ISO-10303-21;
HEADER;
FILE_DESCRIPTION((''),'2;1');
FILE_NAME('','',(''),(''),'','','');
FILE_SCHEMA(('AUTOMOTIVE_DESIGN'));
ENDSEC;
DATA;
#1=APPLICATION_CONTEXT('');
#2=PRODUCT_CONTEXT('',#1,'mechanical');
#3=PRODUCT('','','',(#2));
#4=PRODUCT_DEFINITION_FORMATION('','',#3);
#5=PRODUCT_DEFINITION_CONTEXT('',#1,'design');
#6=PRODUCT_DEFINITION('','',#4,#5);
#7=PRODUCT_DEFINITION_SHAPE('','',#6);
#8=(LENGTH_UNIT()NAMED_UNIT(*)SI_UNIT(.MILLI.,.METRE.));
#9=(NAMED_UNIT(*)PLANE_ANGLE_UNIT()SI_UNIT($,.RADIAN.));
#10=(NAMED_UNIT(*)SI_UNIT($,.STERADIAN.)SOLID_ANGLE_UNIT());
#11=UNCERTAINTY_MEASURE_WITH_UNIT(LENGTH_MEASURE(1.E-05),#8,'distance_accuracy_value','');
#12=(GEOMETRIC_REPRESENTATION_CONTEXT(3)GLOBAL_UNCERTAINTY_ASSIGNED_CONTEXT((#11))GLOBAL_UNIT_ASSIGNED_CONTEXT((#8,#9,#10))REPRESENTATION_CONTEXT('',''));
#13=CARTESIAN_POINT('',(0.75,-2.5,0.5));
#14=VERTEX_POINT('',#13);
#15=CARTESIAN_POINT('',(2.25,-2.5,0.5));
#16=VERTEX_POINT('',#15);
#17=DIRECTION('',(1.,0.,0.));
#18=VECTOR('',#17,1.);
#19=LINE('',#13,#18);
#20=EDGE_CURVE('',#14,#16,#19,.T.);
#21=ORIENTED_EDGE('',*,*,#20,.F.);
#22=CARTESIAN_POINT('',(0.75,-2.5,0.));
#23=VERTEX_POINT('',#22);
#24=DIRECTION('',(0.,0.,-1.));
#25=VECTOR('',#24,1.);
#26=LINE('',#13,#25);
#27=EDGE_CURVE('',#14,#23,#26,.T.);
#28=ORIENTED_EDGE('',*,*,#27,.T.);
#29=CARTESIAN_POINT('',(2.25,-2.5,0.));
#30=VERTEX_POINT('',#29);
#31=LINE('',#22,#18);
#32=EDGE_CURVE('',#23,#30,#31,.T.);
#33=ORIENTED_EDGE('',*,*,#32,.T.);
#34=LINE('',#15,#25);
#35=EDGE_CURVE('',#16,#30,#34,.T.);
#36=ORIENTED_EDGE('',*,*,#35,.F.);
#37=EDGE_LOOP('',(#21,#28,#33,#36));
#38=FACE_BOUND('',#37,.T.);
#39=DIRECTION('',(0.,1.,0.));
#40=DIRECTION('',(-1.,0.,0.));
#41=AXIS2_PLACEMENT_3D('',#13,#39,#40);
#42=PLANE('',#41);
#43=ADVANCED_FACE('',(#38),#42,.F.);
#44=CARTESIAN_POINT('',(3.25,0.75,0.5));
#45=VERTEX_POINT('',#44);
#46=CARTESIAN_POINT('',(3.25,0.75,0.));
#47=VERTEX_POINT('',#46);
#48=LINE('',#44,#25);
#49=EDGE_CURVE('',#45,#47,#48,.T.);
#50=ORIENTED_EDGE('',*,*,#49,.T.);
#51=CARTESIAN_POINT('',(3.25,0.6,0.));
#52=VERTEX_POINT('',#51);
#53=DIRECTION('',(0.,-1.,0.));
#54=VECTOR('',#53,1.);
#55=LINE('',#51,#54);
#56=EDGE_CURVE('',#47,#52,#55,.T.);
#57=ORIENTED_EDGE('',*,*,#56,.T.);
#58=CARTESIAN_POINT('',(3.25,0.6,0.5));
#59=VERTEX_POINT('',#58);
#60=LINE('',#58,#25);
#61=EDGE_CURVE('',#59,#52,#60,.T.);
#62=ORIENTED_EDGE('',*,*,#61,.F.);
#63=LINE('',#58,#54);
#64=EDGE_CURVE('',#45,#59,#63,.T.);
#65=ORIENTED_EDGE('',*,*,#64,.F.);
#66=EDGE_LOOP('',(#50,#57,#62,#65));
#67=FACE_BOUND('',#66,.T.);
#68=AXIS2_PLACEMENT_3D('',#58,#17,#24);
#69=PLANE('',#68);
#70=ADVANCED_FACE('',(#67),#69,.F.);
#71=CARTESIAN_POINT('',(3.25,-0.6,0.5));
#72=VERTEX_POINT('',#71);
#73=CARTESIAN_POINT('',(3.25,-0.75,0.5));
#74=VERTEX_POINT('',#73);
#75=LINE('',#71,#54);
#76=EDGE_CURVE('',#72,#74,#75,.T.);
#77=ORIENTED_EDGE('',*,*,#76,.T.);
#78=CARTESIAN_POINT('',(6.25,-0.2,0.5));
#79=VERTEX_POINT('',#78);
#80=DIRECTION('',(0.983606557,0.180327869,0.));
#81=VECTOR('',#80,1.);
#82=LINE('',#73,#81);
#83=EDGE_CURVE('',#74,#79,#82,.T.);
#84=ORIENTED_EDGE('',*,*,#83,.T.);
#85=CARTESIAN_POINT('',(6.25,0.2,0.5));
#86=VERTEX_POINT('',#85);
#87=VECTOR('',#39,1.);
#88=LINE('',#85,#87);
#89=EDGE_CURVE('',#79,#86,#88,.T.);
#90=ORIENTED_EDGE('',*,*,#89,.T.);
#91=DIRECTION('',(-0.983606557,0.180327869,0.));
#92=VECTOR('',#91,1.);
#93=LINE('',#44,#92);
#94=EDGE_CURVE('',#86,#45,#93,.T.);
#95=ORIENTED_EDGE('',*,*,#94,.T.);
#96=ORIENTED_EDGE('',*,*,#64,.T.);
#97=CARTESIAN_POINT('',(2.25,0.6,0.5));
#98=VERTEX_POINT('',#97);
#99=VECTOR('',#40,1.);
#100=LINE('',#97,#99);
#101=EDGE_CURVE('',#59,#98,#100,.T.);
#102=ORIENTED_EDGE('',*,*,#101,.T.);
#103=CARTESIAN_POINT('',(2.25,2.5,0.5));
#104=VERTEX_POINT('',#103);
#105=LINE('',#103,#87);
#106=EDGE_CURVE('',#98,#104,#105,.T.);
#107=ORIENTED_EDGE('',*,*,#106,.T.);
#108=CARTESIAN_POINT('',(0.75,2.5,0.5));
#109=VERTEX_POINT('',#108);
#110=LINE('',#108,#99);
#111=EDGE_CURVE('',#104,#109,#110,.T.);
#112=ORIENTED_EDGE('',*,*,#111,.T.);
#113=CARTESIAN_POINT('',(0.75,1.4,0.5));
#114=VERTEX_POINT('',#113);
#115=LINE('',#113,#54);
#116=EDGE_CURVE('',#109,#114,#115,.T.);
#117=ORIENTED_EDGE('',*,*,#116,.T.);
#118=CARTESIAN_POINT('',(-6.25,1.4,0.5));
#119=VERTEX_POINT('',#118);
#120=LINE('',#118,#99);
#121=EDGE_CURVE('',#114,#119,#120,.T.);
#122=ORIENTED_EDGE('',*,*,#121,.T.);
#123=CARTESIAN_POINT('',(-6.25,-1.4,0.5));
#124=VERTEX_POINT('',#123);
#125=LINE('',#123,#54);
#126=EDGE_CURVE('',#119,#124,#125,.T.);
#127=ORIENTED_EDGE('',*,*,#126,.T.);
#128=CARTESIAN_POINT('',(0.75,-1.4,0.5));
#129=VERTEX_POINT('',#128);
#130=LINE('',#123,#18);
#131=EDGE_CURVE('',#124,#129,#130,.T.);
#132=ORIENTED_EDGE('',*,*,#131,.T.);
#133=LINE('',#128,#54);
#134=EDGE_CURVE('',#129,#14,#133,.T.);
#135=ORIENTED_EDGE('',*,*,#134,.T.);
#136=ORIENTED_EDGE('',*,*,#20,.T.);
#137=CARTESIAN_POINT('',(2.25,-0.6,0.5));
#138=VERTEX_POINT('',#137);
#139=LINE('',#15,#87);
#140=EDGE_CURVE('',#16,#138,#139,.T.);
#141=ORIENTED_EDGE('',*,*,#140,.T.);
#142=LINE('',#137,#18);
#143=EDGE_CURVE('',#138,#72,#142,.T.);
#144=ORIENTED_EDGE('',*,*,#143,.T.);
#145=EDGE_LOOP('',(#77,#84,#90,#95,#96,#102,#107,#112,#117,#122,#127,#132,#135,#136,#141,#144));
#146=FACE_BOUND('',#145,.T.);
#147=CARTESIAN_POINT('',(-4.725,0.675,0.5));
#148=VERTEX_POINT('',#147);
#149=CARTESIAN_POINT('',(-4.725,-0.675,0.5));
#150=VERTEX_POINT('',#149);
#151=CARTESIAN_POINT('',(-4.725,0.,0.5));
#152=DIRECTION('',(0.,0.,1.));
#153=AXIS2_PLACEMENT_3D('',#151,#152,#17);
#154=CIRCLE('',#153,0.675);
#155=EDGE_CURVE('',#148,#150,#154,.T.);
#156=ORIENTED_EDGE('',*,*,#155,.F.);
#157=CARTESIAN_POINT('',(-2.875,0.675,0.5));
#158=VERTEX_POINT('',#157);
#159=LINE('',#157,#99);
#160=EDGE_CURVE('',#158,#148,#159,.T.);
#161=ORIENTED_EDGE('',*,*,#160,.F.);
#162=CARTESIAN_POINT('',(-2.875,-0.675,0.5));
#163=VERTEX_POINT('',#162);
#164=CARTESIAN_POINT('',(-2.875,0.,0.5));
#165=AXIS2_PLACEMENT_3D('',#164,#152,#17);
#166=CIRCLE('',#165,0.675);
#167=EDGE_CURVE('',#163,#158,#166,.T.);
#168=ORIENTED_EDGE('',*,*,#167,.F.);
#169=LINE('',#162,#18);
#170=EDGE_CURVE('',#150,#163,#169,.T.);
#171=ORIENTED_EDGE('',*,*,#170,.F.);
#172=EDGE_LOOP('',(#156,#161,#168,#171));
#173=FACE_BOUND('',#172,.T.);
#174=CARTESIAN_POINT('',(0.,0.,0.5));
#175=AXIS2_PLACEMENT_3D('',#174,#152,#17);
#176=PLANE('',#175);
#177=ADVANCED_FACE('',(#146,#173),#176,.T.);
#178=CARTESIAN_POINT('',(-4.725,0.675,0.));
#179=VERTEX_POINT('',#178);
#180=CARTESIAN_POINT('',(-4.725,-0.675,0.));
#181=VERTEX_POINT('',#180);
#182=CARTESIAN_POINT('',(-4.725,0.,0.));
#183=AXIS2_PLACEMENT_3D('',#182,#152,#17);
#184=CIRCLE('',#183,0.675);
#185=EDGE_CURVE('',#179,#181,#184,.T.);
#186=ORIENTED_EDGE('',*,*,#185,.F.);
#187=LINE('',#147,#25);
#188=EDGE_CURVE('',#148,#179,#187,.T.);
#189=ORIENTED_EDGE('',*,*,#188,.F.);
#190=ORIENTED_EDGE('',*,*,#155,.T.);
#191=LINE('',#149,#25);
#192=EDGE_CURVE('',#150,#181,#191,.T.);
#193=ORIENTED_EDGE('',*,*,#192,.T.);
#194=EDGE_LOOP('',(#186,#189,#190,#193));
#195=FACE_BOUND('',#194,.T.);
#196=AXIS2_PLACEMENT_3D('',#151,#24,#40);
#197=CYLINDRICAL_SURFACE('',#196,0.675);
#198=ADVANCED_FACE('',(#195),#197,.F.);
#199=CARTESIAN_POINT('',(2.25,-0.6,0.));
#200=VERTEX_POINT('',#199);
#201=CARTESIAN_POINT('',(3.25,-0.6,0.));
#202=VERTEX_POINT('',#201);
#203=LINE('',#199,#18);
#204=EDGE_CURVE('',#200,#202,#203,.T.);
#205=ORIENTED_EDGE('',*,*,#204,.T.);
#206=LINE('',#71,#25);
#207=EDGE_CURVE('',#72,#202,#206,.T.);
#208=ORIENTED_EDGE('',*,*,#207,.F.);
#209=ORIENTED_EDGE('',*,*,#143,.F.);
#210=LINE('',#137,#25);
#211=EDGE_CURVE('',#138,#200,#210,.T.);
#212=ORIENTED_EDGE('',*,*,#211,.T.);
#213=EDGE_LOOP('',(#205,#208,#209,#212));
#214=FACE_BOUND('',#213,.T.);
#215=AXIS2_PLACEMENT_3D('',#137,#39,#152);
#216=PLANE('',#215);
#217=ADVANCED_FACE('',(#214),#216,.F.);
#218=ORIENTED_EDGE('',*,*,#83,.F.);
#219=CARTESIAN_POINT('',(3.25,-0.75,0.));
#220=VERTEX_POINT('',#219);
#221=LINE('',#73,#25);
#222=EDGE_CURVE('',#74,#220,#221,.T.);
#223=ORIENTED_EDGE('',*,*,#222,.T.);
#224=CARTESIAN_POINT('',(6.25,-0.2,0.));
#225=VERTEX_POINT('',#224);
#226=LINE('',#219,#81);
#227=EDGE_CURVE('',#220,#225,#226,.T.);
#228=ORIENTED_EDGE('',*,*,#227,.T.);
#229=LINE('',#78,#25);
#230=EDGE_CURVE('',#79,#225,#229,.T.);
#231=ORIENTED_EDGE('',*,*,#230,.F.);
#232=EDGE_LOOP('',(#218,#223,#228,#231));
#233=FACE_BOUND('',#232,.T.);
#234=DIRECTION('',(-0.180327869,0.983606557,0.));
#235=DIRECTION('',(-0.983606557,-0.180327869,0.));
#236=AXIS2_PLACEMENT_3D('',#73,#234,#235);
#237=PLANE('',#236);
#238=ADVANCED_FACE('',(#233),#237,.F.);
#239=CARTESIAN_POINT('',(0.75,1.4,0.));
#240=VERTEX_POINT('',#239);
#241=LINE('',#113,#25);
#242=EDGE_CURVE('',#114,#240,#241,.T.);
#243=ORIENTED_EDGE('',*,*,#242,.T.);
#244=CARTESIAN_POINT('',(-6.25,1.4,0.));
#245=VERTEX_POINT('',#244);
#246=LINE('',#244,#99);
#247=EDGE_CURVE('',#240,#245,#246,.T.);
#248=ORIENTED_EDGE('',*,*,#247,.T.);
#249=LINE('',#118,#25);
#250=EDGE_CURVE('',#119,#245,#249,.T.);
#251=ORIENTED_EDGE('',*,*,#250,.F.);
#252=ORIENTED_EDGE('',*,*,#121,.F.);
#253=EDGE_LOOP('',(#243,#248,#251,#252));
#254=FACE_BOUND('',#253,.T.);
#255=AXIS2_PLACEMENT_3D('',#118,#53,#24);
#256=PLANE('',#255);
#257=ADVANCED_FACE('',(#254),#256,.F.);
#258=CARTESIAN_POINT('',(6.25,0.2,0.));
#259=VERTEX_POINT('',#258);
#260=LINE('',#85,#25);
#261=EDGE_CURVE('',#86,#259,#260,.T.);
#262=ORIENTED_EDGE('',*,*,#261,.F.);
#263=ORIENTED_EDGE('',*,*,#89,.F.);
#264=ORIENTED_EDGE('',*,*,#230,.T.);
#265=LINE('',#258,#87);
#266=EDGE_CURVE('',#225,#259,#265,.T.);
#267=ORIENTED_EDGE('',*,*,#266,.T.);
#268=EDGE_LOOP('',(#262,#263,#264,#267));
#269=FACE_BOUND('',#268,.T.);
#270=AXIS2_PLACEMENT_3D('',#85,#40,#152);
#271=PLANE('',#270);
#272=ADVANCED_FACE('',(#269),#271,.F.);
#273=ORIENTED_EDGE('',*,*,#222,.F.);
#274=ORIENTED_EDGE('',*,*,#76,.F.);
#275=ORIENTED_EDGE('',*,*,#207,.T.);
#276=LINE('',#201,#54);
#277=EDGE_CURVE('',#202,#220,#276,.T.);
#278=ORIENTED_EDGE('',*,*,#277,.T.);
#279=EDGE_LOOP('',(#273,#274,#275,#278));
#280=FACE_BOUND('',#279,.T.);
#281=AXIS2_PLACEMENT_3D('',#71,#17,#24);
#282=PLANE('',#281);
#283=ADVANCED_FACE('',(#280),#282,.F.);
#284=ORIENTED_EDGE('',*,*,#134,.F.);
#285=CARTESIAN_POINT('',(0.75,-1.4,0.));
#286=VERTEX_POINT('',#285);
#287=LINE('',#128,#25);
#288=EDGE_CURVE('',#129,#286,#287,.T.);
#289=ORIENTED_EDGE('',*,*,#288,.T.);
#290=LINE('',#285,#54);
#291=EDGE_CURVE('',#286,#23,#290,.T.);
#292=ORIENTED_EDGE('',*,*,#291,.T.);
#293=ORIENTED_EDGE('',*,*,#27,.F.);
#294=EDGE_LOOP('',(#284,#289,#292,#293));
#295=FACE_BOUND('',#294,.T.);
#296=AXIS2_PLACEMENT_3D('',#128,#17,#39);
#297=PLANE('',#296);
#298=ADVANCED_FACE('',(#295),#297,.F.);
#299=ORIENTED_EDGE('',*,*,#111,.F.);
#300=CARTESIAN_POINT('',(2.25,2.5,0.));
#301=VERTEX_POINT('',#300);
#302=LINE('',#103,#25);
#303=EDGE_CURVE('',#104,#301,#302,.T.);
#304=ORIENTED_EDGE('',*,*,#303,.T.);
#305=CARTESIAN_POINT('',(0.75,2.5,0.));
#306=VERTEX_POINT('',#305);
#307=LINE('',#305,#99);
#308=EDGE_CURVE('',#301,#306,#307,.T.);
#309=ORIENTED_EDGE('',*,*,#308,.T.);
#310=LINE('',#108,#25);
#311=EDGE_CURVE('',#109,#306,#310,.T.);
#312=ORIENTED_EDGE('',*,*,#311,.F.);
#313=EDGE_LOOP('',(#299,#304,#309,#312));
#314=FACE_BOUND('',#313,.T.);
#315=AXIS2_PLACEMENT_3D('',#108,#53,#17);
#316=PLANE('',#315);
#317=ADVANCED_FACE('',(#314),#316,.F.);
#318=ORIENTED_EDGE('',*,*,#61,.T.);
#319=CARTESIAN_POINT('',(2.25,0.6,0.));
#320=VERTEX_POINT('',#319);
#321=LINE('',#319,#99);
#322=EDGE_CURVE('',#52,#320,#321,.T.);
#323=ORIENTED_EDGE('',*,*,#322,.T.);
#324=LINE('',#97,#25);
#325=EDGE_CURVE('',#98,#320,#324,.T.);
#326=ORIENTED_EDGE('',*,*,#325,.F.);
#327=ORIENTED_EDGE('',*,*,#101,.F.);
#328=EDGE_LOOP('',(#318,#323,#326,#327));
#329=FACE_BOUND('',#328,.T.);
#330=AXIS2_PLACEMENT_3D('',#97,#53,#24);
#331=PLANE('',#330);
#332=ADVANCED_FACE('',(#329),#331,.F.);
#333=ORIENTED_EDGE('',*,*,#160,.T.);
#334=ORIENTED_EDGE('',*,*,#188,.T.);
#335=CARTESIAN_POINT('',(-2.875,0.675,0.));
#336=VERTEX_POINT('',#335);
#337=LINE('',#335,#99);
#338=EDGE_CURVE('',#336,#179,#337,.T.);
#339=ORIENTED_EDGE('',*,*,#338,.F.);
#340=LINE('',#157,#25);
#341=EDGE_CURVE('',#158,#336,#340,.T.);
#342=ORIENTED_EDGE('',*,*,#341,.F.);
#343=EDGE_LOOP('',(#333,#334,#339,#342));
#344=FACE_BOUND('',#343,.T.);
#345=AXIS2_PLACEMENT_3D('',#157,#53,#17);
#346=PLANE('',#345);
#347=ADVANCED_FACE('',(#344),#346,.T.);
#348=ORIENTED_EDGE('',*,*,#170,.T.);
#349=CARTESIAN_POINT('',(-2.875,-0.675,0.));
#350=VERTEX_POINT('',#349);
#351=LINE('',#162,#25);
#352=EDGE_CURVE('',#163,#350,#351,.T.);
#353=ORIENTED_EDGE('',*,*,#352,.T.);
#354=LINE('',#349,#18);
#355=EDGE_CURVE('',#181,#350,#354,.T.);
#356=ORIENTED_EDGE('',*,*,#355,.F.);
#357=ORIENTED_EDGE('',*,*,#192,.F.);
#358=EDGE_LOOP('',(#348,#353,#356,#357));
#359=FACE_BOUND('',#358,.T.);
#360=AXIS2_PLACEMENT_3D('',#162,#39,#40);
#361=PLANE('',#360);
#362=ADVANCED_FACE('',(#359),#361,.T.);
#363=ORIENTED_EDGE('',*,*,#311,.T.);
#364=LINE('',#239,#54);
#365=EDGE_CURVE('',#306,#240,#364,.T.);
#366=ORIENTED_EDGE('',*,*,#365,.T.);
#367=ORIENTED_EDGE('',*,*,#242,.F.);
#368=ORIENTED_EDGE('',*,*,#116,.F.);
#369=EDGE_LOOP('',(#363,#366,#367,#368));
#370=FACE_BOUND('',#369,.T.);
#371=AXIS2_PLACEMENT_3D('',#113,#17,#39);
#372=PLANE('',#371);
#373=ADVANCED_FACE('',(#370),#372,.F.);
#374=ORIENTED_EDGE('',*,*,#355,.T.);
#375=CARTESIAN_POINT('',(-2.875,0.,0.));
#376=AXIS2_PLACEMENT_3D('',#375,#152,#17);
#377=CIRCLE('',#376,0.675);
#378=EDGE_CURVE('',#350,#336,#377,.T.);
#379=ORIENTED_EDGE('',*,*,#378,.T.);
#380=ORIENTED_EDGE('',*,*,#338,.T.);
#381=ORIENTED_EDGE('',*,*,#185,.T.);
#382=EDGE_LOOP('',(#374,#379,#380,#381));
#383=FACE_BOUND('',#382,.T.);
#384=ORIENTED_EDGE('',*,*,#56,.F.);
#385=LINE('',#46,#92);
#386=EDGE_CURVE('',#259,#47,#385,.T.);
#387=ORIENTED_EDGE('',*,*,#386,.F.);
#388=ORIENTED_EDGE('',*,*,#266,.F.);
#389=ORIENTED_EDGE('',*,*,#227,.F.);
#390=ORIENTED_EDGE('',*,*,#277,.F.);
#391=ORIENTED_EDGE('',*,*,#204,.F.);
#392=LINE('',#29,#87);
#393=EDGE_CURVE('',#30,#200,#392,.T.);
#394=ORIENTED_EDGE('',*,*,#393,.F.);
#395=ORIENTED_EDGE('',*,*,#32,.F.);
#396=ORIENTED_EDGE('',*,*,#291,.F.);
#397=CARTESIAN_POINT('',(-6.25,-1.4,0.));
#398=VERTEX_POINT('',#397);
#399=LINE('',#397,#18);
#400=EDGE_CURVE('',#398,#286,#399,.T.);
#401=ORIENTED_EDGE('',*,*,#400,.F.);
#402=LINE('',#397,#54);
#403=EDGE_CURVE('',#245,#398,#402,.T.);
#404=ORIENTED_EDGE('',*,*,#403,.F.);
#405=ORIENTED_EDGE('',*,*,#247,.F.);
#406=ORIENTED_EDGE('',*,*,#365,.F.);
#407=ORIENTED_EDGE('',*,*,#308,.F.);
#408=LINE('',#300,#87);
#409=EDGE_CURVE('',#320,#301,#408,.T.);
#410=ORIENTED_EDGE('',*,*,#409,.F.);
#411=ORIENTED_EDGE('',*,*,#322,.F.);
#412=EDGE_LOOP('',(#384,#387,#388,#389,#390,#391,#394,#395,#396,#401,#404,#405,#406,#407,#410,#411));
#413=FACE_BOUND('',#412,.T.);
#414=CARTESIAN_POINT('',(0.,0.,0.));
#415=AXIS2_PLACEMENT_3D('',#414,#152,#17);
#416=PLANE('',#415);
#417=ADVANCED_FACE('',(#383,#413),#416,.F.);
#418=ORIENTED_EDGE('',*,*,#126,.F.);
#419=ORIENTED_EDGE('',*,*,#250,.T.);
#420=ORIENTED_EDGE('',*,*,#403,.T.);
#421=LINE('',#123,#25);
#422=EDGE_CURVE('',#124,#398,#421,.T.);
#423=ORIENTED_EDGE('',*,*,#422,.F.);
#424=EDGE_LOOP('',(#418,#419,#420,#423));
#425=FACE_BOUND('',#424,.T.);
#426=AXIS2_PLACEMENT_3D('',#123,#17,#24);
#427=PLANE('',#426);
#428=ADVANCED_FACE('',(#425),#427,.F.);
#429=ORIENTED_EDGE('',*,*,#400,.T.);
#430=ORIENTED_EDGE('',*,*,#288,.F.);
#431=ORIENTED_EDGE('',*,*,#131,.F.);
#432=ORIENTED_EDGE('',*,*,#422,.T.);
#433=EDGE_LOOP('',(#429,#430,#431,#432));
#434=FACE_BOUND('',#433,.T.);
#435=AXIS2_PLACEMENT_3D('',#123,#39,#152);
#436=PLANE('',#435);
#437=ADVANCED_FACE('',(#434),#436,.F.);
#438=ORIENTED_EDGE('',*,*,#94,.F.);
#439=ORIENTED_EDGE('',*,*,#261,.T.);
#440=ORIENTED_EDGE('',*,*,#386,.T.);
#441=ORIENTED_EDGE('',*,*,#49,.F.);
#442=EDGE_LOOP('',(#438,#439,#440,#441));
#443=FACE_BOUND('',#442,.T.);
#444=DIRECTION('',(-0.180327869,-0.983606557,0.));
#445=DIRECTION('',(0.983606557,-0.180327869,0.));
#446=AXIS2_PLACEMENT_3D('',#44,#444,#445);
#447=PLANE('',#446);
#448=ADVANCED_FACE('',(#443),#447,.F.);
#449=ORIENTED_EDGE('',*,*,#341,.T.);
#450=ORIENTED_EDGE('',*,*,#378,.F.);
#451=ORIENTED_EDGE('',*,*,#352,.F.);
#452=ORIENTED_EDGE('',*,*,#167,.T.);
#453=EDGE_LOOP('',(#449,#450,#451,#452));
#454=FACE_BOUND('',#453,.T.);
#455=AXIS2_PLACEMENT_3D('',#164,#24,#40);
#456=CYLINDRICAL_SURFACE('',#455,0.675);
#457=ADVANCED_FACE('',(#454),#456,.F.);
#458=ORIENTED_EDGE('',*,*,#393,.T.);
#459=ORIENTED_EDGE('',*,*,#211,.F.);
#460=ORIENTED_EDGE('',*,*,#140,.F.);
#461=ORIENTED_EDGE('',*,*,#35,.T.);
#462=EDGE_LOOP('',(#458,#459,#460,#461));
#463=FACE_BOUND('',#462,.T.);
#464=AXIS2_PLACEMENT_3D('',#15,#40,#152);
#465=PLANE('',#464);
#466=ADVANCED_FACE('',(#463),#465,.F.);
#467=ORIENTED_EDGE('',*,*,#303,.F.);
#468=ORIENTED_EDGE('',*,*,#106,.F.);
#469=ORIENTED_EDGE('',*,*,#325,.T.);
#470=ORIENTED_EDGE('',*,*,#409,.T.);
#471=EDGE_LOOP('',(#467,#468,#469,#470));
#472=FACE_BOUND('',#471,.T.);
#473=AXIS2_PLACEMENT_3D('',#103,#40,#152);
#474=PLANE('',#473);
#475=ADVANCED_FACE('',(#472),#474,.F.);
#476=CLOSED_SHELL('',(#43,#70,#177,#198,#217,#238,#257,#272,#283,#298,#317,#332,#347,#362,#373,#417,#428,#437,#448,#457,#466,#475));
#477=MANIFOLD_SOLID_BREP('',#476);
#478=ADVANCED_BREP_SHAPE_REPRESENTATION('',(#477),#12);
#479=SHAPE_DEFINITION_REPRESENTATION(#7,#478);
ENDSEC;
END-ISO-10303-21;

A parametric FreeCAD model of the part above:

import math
import FreeCAD as App
import Part
import Sketcher

V = App.Vector
Q = App.Units.Quantity


def add_polygon(sketch, points):
    """Adds a closed chain of lines whose ends are joined by coincident constraints."""
    first, n = sketch.GeometryCount, len(points)
    for a, b in zip(points, points[1:] + points[:1]):
        sketch.addGeometry(Part.LineSegment(App.Vector(*a, 0), App.Vector(*b, 0)), False)
    for i in range(n):
        sketch.addConstraint(Sketcher.Constraint("Coincident", first + i, 2, first + (i + 1) % n, 1))

doc = App.newDocument("Part")
body = doc.addObject("PartDesign::Body", "Body")

# Sketch on XY plane
sketch1 = body.newObject("Sketcher::SketchObject", "Sketch")
sketch1.AttachmentSupport = (doc.getObject("XY_Plane"), [""])
sketch1.MapMode = "FlatFace"
add_polygon(sketch1, [(-6.25, 1.4), (-6.25, -1.4), (0.75, -1.4), (0.75, -2.5), (2.25, -2.5), (2.25, -0.6), (3.25, -0.6), (3.25, -0.75), (6.25, -0.2), (6.25, 0.2), (3.25, 0.75), (3.25, 0.6), (2.25, 0.6), (2.25, 2.5), (0.75, 2.5), (0.75, 1.4)])  # lines 0-15
sketch1.addGeometry(Part.ArcOfCircle(Part.Circle(V(-2.875, 0, 0), V(0, 0, 1), 0.675), math.radians(-90), math.radians(90)), False)  # 16
sketch1.addGeometry(Part.LineSegment(V(-2.875, -0.675, 0), V(-4.725, -0.675, 0)), False)  # 17
sketch1.addGeometry(Part.ArcOfCircle(Part.Circle(V(-4.725, 0, 0), V(0, 0, 1), 0.675), math.radians(90), math.radians(270)), False)  # 18
sketch1.addGeometry(Part.LineSegment(V(-4.725, 0.675, 0), V(-2.875, 0.675, 0)), False)  # 19
sketch1.addConstraint([
    Sketcher.Constraint("Tangent", 16, 1, 17, 1),
    Sketcher.Constraint("Tangent", 17, 2, 18, 2),
    Sketcher.Constraint("Tangent", 18, 1, 19, 1),
    Sketcher.Constraint("Tangent", 19, 2, 16, 2),
    Sketcher.Constraint("Vertical", 0),
    Sketcher.Constraint("Horizontal", 1),
    Sketcher.Constraint("Vertical", 2),
    Sketcher.Constraint("Horizontal", 3),
    Sketcher.Constraint("Vertical", 4),
    Sketcher.Constraint("Horizontal", 5),
    Sketcher.Constraint("Vertical", 6),
    Sketcher.Constraint("Vertical", 8),
    Sketcher.Constraint("Vertical", 10),
    Sketcher.Constraint("Horizontal", 11),
    Sketcher.Constraint("Vertical", 12),
    Sketcher.Constraint("Horizontal", 13),
    Sketcher.Constraint("Vertical", 14),
    Sketcher.Constraint("Horizontal", 15),
    Sketcher.Constraint("Horizontal", 17),
    Sketcher.Constraint("Horizontal", 19),
    Sketcher.Constraint("Symmetric", 6, 2, 9, 2, -1),
    Sketcher.Constraint("Symmetric", 4, 2, 11, 2, -1),
    Sketcher.Constraint("Symmetric", 2, 2, 13, 2, -1),
    Sketcher.Constraint("PointOnObject", 16, 3, -1),
    Sketcher.Constraint("Equal", 2, 14),
    Sketcher.Constraint("Equal", 7, 9),
    Sketcher.Constraint("DistanceX", 1, 1, 1, 2, Q("7 mm")),
    Sketcher.Constraint("DistanceX", 5, 1, 5, 2, Q("1 mm")),
    Sketcher.Constraint("DistanceX", 3, 1, 3, 2, Q("1.5 mm")),
    Sketcher.Constraint("DistanceY", 0, 2, 0, 1, Q("2.8 mm")),
    Sketcher.Constraint("DistanceY", 2, 2, 2, 1, Q("1.1 mm")),
    Sketcher.Constraint("DistanceY", 4, 1, 4, 2, Q("1.9 mm")),
    Sketcher.Constraint("DistanceY", 8, 1, 8, 2, Q("0.4 mm")),
    Sketcher.Constraint("Radius", 16, Q("0.675 mm")),
    Sketcher.Constraint("DistanceX", 5, 2, 7, 2, Q("3 mm")),
    Sketcher.Constraint("DistanceX", 17, 2, 17, 1, Q("1.85 mm")),
    Sketcher.Constraint("DistanceY", 6, 2, 6, 1, Q("0.15 mm")),
    Sketcher.Constraint("DistanceX", 0, 2, -1, 1, Q("6.25 mm")),
    Sketcher.Constraint("DistanceX", 16, 3, -1, 1, Q("2.875 mm")),
])
pad1 = body.newObject("PartDesign::Pad", "Pad")
pad1.Profile = sketch1
pad1.Length = 0.5

doc.recompute()
